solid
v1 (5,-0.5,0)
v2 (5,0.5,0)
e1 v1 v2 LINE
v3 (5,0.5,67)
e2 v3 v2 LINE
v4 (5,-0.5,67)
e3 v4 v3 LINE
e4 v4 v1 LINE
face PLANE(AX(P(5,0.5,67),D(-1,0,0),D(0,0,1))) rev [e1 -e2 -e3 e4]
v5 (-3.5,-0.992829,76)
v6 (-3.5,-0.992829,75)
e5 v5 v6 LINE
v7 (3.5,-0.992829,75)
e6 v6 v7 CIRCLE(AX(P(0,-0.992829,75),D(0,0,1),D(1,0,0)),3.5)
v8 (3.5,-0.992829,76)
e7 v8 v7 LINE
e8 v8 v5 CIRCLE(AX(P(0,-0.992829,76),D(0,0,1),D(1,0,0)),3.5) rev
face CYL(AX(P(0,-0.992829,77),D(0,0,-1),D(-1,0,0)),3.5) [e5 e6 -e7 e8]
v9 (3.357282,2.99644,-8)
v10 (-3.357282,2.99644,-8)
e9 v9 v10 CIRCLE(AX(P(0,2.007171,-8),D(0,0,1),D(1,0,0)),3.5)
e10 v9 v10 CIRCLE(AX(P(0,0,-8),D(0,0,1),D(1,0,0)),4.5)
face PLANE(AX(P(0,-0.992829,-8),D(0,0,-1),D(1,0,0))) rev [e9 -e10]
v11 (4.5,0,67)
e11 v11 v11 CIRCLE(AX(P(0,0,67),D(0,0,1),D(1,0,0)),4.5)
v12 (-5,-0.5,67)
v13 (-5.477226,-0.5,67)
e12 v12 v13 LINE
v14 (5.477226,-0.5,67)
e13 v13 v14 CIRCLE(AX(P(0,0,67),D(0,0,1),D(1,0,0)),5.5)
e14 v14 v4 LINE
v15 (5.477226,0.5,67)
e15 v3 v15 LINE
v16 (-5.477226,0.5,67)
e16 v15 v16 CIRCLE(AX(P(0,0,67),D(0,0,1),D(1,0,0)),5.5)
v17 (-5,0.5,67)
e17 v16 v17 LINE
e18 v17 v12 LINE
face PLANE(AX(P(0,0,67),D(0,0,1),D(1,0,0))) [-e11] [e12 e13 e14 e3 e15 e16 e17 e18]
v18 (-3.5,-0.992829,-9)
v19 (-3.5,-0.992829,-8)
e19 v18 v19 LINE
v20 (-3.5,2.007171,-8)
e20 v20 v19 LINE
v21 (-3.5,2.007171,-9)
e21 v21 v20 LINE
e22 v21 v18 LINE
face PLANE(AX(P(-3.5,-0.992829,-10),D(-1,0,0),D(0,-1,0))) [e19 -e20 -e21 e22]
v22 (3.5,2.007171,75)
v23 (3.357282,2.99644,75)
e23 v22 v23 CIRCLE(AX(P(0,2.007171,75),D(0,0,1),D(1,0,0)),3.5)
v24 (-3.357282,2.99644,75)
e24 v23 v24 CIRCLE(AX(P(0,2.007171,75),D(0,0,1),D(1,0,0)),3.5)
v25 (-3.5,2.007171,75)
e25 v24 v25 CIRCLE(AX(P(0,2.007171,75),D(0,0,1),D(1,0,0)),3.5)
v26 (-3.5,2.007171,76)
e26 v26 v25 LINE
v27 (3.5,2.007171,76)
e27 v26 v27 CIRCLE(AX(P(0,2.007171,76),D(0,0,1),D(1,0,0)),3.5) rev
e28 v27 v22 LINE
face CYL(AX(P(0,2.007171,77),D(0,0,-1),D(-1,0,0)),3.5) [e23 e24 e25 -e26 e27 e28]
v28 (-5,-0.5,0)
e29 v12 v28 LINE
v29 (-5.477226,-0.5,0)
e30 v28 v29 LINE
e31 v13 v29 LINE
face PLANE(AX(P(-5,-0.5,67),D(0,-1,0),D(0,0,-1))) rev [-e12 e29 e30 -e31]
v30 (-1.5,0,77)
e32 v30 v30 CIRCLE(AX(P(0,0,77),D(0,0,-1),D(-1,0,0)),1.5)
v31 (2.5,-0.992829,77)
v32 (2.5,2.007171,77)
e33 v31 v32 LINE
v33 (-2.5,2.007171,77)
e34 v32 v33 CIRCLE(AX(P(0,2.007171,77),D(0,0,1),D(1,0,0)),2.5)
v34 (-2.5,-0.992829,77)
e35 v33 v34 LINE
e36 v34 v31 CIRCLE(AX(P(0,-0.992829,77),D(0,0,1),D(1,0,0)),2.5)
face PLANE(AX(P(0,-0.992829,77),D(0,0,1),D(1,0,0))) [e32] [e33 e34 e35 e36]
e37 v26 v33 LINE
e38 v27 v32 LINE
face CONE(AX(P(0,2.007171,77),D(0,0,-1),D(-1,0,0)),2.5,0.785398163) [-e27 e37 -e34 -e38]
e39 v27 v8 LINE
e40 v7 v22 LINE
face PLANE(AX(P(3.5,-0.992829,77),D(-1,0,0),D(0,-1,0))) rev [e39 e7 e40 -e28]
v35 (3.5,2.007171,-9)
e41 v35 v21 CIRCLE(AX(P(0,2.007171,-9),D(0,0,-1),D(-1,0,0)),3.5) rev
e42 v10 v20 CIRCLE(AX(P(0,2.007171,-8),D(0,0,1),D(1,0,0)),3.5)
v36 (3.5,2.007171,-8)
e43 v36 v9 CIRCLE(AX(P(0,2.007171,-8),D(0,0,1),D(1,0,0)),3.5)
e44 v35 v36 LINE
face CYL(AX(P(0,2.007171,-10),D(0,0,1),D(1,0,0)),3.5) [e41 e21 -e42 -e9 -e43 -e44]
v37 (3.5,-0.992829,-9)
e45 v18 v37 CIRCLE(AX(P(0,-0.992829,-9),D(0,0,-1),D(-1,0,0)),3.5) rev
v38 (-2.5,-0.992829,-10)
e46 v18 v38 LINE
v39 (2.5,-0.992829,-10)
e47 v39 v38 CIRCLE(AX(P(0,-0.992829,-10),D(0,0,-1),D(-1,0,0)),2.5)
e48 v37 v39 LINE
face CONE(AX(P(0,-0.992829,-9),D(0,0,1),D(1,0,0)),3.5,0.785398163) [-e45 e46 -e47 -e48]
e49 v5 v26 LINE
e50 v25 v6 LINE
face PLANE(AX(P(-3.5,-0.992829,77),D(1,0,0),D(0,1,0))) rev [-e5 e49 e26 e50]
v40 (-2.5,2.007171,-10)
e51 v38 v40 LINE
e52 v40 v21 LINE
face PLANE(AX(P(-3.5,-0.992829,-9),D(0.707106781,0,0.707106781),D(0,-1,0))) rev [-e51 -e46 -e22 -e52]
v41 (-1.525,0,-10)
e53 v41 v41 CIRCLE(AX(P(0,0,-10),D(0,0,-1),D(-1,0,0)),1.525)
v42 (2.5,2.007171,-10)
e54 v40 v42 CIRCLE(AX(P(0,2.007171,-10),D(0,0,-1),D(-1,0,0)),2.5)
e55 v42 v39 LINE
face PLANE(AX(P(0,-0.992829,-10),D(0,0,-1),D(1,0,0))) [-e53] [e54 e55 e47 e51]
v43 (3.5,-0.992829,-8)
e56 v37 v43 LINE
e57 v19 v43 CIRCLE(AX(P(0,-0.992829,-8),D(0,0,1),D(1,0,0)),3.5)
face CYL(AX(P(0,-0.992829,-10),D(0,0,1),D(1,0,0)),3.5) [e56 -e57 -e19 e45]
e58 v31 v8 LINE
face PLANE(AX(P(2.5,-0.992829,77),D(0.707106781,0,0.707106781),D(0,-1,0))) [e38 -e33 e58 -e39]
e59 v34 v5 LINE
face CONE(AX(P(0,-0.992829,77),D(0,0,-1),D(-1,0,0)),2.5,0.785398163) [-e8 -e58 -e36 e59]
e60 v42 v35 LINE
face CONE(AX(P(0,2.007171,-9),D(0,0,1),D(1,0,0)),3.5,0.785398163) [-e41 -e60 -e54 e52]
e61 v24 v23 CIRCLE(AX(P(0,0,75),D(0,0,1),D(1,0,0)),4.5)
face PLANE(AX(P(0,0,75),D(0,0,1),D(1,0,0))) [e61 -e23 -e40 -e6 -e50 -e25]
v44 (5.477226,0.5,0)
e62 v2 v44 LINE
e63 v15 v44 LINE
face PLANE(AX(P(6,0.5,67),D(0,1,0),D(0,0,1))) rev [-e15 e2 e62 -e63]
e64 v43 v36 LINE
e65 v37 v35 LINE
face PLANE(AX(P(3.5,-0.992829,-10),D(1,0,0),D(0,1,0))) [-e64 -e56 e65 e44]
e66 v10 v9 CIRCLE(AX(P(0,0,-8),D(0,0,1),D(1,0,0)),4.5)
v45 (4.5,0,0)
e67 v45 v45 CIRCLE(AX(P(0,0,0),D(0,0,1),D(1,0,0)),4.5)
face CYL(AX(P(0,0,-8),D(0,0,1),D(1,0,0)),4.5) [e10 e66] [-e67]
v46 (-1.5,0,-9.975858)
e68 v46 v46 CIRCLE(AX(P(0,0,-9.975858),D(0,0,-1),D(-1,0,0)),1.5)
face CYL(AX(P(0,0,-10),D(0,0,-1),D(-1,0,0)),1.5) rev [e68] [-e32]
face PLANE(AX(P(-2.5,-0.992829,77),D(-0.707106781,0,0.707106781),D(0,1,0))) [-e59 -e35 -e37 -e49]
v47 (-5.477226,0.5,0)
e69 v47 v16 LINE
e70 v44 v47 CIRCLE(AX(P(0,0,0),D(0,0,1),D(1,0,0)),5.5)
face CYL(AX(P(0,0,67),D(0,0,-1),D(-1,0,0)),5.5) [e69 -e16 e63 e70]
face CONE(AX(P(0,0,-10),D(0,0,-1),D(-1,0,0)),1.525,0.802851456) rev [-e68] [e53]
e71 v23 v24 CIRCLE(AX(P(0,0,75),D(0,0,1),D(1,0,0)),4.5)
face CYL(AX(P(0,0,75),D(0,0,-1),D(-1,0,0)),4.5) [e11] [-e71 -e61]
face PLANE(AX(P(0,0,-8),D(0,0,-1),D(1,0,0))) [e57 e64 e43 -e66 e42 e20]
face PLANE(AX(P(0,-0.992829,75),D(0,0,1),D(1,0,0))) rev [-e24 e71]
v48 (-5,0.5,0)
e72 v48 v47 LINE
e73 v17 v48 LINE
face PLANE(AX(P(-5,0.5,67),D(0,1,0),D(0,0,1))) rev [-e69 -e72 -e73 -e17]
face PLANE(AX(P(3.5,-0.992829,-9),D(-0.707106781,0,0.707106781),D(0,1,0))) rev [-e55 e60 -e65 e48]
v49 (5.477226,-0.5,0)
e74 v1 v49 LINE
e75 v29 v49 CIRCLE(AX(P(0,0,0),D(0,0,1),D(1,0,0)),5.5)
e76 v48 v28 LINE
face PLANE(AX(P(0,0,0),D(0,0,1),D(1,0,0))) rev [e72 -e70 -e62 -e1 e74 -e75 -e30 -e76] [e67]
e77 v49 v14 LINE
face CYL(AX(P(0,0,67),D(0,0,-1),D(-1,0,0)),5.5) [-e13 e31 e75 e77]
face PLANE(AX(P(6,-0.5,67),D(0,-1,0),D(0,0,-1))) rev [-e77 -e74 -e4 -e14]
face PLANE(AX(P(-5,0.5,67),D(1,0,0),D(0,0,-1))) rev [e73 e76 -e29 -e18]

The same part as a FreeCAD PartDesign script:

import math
import FreeCAD as App
import Part
import Sketcher

V = App.Vector
Q = App.Units.Quantity


def edges_at(feature, points):
    """Names of the edges that pass closest to the given points."""
    edges = feature.Shape.Edges
    near = lambda p: min(range(len(edges)), key=lambda i: edges[i].distToShape(Part.Vertex(*p))[0])
    return sorted({f"Edge{near(p) + 1}" for p in points})


def add_polygon(sketch, points):
    """Adds a closed chain of lines whose ends are joined by coincident constraints."""
    first, n = sketch.GeometryCount, len(points)
    for a, b in zip(points, points[1:] + points[:1]):
        sketch.addGeometry(Part.LineSegment(App.Vector(*a, 0), App.Vector(*b, 0)), False)
    for i in range(n):
        sketch.addConstraint(Sketcher.Constraint("Coincident", first + i, 2, first + (i + 1) % n, 1))

doc = App.newDocument("Part")
body = doc.addObject("PartDesign::Body", "Body")

# Sketch on XY plane
sketch1 = doc.addObject("Sketcher::SketchObject", "Sketch")
body.addObject(sketch1)
sketch1.AttachmentSupport = (doc.XY_Plane, [""])
sketch1.MapMode = "FlatFace"
sketch1.addGeometry(Part.Circle(V(0, 0, 0), V(0, 0, 1), 5.5), False)
sketch1.addConstraint([
    Sketcher.Constraint("Coincident", 0, 3, -1, 1),
    Sketcher.Constraint("Diameter", 0, Q("11 mm")),
])
pad1 = doc.addObject("PartDesign::Pad", "Pad")
body.addObject(pad1)
pad1.Profile = sketch1
pad1.Length = 67

# Sketch on XY plane
sketch2 = doc.addObject("Sketcher::SketchObject", "Sketch001")
body.addObject(sketch2)
sketch2.AttachmentSupport = (doc.XY_Plane, [""])
sketch2.MapMode = "FlatFace"
add_polygon(sketch2, [(-5, 0.5), (-5, -0.5), (-6, -0.5), (-6, 0.5)])  # lines 0-3
add_polygon(sketch2, [(6, 0.5), (6, -0.5), (5, -0.5), (5, 0.5)])  # lines 4-7
sketch2.addConstraint([
    Sketcher.Constraint("Vertical", 0),
    Sketcher.Constraint("Horizontal", 1),
    Sketcher.Constraint("Vertical", 2),
    Sketcher.Constraint("Horizontal", 3),
    Sketcher.Constraint("Vertical", 4),
    Sketcher.Constraint("Horizontal", 5),
    Sketcher.Constraint("Vertical", 6),
    Sketcher.Constraint("Horizontal", 7),
    Sketcher.Constraint("Symmetric", 2, 2, 4, 2, -1, 1),
    Sketcher.Constraint("Symmetric", 0, 2, 6, 2, -1, 1),
    Sketcher.Constraint("Horizontal", 1, 2, 4, 2),
    Sketcher.Constraint("Equal", 7, 0),
    Sketcher.Constraint("DistanceX", 1, 2, 1, 1, Q("1 mm")),
    Sketcher.Constraint("DistanceX", 0, 2, -1, 1, Q("5 mm")),
])
pocket1 = doc.addObject("PartDesign::Pocket", "Pocket")
body.addObject(pocket1)
pocket1.Profile = sketch2
pocket1.Length = 67
pocket1.Reversed = True

# Sketch on XY plane
sketch3 = doc.addObject("Sketcher::SketchObject", "Sketch002")
body.addObject(sketch3)
sketch3.AttachmentSupport = (doc.XY_Plane, [""])
sketch3.MapMode = "FlatFace"
sketch3.AttachmentOffset = App.Placement(V(0, 0, 67), App.Rotation())
sketch3.addGeometry(Part.Circle(V(0, 0, 0), V(0, 0, 1), 4.5), False)
sketch3.addConstraint([
    Sketcher.Constraint("Coincident", 0, 3, -1, 1),
    Sketcher.Constraint("Diameter", 0, Q("9 mm")),
])
pad2 = doc.addObject("PartDesign::Pad", "Pad001")
body.addObject(pad2)
pad2.Profile = sketch3
pad2.Length = 8

# Sketch on XY plane
sketch4 = doc.addObject("Sketcher::SketchObject", "Sketch003")
body.addObject(sketch4)
sketch4.AttachmentSupport = (doc.XY_Plane, [""])
sketch4.MapMode = "FlatFace"
sketch4.AttachmentOffset = App.Placement(V(0, 0, 75), App.Rotation())
sketch4.addGeometry([
    Part.LineSegment(V(-3.5, 2.007171, 0), V(-3.5, -0.992829, 0)),
    Part.ArcOfCircle(Part.Circle(V(0, -0.992829, 0), V(0, 0, 1), 3.5), math.radians(180), math.radians(360)),
    Part.LineSegment(V(3.5, -0.992829, 0), V(3.5, 2.007171, 0)),
    Part.ArcOfCircle(Part.Circle(V(0, 2.007171, 0), V(0, 0, 1), 3.5), math.radians(0), math.radians(180)),
], False)
sketch4.addConstraint([
    Sketcher.Constraint("Tangent", 0, 2, 1, 1),
    Sketcher.Constraint("Tangent", 1, 2, 2, 1),
    Sketcher.Constraint("Tangent", 2, 2, 3, 1),
    Sketcher.Constraint("Tangent", 3, 2, 0, 1),
    Sketcher.Constraint("Vertical", 0),
    Sketcher.Constraint("Vertical", 2),
    Sketcher.Constraint("PointOnObject", 1, 3, -2),
    Sketcher.Constraint("Radius", 1, Q("3.5 mm")),
    Sketcher.Constraint("DistanceY", 0, 2, 0, 1, Q("3 mm")),
    Sketcher.Constraint("DistanceY", 1, 3, -1, 1, Q("0.992829 mm")),
])
pad3 = doc.addObject("PartDesign::Pad", "Pad002")
body.addObject(pad3)
pad3.Profile = sketch4
pad3.Length = 2
doc.recompute()

chamfer = doc.addObject("PartDesign::Chamfer", "Chamfer")
body.addObject(chamfer)
chamfer.Base = (pad3, edges_at(pad3, [
    (0, -4.493, 77),
    (3.5, 0.507, 77),
    (0, 5.507, 77),
    (-3.5, 0.507, 77),
]))
chamfer.Size = 1
doc.recompute()

datumplane = doc.addObject("PartDesign::Plane", "DatumPlane")
body.addObject(datumplane)
datumplane.AttachmentSupport = (doc.XY_Plane, [""])
datumplane.MapMode = "FlatFace"
datumplane.AttachmentOffset = App.Placement(V(0, 0, 33.5), App.Rotation())
mirrored = doc.addObject("PartDesign::Mirrored", "Mirrored")
body.addObject(mirrored)
mirrored.Originals = [pad2, pad3]
mirrored.MirrorPlane = (datumplane, [""])
body.Tip = mirrored
doc.recompute()

chamfer2 = doc.addObject("PartDesign::Chamfer", "Chamfer001")
body.addObject(chamfer2)
chamfer2.Base = (mirrored, edges_at(mirrored, [
    (0, -4.493, -10),
    (3.5, 0.507, -10),
    (0, 5.507, -10),
    (-3.5, 0.507, -10),
]))
chamfer2.Size = 1

# Sketch on XY plane
sketch5 = doc.addObject("Sketcher::SketchObject", "Sketch004")
body.addObject(sketch5)
sketch5.AttachmentSupport = (doc.XY_Plane, [""])
sketch5.MapMode = "FlatFace"
sketch5.AttachmentOffset = App.Placement(V(0, 0, -10), App.Rotation())
sketch5.addGeometry(Part.Circle(V(0, 0, 0), V(0, 0, 1), 1.5), False)
sketch5.addConstraint([
    Sketcher.Constraint("Coincident", 0, 3, -1, 1),
    Sketcher.Constraint("Diameter", 0, Q("3 mm")),
])
doc.recompute()
hole = doc.addObject("PartDesign::Hole", "Hole")
body.addObject(hole)
hole.Profile = sketch5
hole.ThreadType = "None"
hole.Diameter = 3
hole.DepthType = "ThroughAll"
hole.HoleCutType = "Countersink"
hole.HoleCutDiameter = 3.05
hole.HoleCutCountersinkAngle = 92
hole.Reversed = True

doc.recompute()
